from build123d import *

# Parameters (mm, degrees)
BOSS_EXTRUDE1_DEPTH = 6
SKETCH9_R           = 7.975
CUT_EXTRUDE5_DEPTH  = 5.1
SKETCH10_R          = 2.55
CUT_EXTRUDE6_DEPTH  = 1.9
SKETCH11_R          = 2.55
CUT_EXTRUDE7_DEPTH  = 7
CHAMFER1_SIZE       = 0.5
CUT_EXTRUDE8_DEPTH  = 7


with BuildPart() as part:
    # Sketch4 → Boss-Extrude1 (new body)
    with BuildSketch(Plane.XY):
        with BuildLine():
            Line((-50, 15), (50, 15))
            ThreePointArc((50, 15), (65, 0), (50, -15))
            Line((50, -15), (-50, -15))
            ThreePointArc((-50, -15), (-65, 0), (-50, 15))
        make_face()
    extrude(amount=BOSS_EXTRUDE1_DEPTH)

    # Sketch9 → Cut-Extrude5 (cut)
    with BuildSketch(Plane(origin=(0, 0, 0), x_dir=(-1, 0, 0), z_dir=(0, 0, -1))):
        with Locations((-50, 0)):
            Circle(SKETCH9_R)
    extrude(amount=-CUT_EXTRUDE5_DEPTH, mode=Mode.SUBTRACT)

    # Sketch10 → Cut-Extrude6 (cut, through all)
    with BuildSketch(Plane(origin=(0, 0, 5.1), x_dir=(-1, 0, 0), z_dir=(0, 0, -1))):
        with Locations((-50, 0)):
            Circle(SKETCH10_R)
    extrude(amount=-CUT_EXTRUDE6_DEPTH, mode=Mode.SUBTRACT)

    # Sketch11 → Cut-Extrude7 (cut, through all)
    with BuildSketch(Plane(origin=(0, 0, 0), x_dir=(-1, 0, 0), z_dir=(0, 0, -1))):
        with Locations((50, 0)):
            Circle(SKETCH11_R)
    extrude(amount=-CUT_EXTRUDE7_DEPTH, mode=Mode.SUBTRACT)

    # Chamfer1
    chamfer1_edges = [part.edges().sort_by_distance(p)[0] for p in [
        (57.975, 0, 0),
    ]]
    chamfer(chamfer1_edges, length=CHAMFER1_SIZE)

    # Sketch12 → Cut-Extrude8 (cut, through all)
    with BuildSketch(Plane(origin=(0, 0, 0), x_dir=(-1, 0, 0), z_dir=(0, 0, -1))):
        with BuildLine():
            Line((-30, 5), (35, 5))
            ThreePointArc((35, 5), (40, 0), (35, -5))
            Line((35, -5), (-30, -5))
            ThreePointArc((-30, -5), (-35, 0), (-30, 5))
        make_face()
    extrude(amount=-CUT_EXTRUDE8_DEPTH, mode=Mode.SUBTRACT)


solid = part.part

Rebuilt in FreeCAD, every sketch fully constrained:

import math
import FreeCAD as App
import Part
import Sketcher
from FreeCAD import Vector


def edges_at(feature, points):
    """Names of the edges that pass closest to the given points."""
    edges = feature.Shape.Edges
    near = lambda p: min(range(len(edges)), key=lambda i: edges[i].distToShape(Part.Vertex(*p))[0])
    return sorted({f"Edge{near(p) + 1}" for p in points})

doc = App.newDocument("Part")
body = doc.addObject("PartDesign::Body", "Body")

# Sketch on XY plane
sketch1 = doc.addObject("Sketcher::SketchObject", "Sketch")
body.addObject(sketch1)
sketch1.AttachmentSupport = (doc.XY_Plane, [""])
sketch1.MapMode = "FlatFace"
sketch1.addGeometry([
    Part.LineSegment(Vector(50, 15, 0), Vector(-50, 15, 0)),
    Part.ArcOfCircle(Part.Circle(Vector(-50, 0, 0), Vector(0, 0, 1), 15), math.radians(90), math.radians(270)),
    Part.LineSegment(Vector(-50, -15, 0), Vector(50, -15, 0)),
    Part.ArcOfCircle(Part.Circle(Vector(50, 0, 0), Vector(0, 0, 1), 15), math.radians(-90), math.radians(90)),
], False)
sketch1.addConstraint([
    Sketcher.Constraint("Tangent", 0, 2, 1, 1),
    Sketcher.Constraint("Tangent", 1, 2, 2, 1),
    Sketcher.Constraint("Tangent", 2, 2, 3, 1),
    Sketcher.Constraint("Tangent", 3, 2, 0, 1),
    Sketcher.Constraint("Horizontal", 0),
    Sketcher.Constraint("Horizontal", 2),
    Sketcher.Constraint("Symmetric", 1, 3, 3, 3, -1, 1),
    Sketcher.Constraint("Radius", 1, 15.0),
    Sketcher.Constraint("DistanceX", 0, 2, 0, 1, 100.0),
])
pad1 = doc.addObject("PartDesign::Pad", "Pad")
body.addObject(pad1)
pad1.Profile = sketch1
pad1.Length = 6

# Sketch on XY plane
sketch2 = doc.addObject("Sketcher::SketchObject", "Sketch001")
body.addObject(sketch2)
sketch2.AttachmentSupport = (doc.XY_Plane, [""])
sketch2.MapMode = "FlatFace"
sketch2.addGeometry(Part.Circle(Vector(50, 0, 0), Vector(0, 0, 1), 8), False)
sketch2.addConstraint([
    Sketcher.Constraint("PointOnObject", 0, 3, -1),
    Sketcher.Constraint("Diameter", 0, 15.95),
    Sketcher.Constraint("DistanceX", -1, 1, 0, 3, 50.0),
])
pocket1 = doc.addObject("PartDesign::Pocket", "Pocket")
body.addObject(pocket1)
pocket1.Profile = sketch2
pocket1.Length = 5.1
pocket1.Reversed = True

# Sketch on XY plane
sketch3 = doc.addObject("Sketcher::SketchObject", "Sketch002")
body.addObject(sketch3)
sketch3.AttachmentSupport = (doc.XY_Plane, [""])
sketch3.MapMode = "FlatFace"
sketch3.AttachmentOffset = App.Placement(Vector(0, 0, 5.1), App.Rotation())
sketch3.addGeometry(Part.Circle(Vector(50, 0, 0), Vector(0, 0, 1), 2.5), False)
sketch3.addConstraint([
    Sketcher.Constraint("PointOnObject", 0, 3, -1),
    Sketcher.Constraint("Diameter", 0, 5.1),
    Sketcher.Constraint("DistanceX", -1, 1, 0, 3, 50.0),
])
pocket2 = doc.addObject("PartDesign::Pocket", "Pocket001")
body.addObject(pocket2)
pocket2.Profile = sketch3
pocket2.Type = "ThroughAll"
pocket2.Reversed = True

# Sketch on XY plane
sketch4 = doc.addObject("Sketcher::SketchObject", "Sketch003")
body.addObject(sketch4)
sketch4.AttachmentSupport = (doc.XY_Plane, [""])
sketch4.MapMode = "FlatFace"
sketch4.addGeometry(Part.Circle(Vector(-50, 0, 0), Vector(0, 0, 1), 2.5), False)
sketch4.addConstraint([
    Sketcher.Constraint("PointOnObject", 0, 3, -1),
    Sketcher.Constraint("Diameter", 0, 5.1),
    Sketcher.Constraint("DistanceX", 0, 3, -1, 1, 50.0),
])
pocket3 = doc.addObject("PartDesign::Pocket", "Pocket002")
body.addObject(pocket3)
pocket3.Profile = sketch4
pocket3.Type = "ThroughAll"
pocket3.Reversed = True
doc.recompute()

chamfer = doc.addObject("PartDesign::Chamfer", "Chamfer")
body.addObject(chamfer)
chamfer.Base = (pocket3, edges_at(pocket3, [(57.975, 0, 0)]))
chamfer.Size = 0.5

# Sketch on XY plane
sketch5 = doc.addObject("Sketcher::SketchObject", "Sketch004")
body.addObject(sketch5)
sketch5.AttachmentSupport = (doc.XY_Plane, [""])
sketch5.MapMode = "FlatFace"
sketch5.addGeometry([
    Part.LineSegment(Vector(-35, 5, 0), Vector(30, 5, 0)),
    Part.ArcOfCircle(Part.Circle(Vector(30, 0, 0), Vector(0, 0, 1), 5), math.radians(-90), math.radians(90)),
    Part.LineSegment(Vector(30, -5, 0), Vector(-35, -5, 0)),
    Part.ArcOfCircle(Part.Circle(Vector(-35, 0, 0), Vector(0, 0, 1), 5), math.radians(90), math.radians(270)),
], False)
sketch5.addConstraint([
    Sketcher.Constraint("Tangent", 0, 2, 1, 2),
    Sketcher.Constraint("Tangent", 1, 1, 2, 1),
    Sketcher.Constraint("Tangent", 2, 2, 3, 2),
    Sketcher.Constraint("Tangent", 3, 1, 0, 1),
    Sketcher.Constraint("Horizontal", 0),
    Sketcher.Constraint("Horizontal", 2),
    Sketcher.Constraint("PointOnObject", 1, 3, -1),
    Sketcher.Constraint("Radius", 1, 5.0),
    Sketcher.Constraint("DistanceX", 0, 1, 0, 2, 65.0),
    Sketcher.Constraint("DistanceX", -1, 1, 1, 3, 30.0),
])
pocket4 = doc.addObject("PartDesign::Pocket", "Pocket003")
body.addObject(pocket4)
pocket4.Profile = sketch5
pocket4.Type = "ThroughAll"
pocket4.Reversed = True

doc.recompute()
